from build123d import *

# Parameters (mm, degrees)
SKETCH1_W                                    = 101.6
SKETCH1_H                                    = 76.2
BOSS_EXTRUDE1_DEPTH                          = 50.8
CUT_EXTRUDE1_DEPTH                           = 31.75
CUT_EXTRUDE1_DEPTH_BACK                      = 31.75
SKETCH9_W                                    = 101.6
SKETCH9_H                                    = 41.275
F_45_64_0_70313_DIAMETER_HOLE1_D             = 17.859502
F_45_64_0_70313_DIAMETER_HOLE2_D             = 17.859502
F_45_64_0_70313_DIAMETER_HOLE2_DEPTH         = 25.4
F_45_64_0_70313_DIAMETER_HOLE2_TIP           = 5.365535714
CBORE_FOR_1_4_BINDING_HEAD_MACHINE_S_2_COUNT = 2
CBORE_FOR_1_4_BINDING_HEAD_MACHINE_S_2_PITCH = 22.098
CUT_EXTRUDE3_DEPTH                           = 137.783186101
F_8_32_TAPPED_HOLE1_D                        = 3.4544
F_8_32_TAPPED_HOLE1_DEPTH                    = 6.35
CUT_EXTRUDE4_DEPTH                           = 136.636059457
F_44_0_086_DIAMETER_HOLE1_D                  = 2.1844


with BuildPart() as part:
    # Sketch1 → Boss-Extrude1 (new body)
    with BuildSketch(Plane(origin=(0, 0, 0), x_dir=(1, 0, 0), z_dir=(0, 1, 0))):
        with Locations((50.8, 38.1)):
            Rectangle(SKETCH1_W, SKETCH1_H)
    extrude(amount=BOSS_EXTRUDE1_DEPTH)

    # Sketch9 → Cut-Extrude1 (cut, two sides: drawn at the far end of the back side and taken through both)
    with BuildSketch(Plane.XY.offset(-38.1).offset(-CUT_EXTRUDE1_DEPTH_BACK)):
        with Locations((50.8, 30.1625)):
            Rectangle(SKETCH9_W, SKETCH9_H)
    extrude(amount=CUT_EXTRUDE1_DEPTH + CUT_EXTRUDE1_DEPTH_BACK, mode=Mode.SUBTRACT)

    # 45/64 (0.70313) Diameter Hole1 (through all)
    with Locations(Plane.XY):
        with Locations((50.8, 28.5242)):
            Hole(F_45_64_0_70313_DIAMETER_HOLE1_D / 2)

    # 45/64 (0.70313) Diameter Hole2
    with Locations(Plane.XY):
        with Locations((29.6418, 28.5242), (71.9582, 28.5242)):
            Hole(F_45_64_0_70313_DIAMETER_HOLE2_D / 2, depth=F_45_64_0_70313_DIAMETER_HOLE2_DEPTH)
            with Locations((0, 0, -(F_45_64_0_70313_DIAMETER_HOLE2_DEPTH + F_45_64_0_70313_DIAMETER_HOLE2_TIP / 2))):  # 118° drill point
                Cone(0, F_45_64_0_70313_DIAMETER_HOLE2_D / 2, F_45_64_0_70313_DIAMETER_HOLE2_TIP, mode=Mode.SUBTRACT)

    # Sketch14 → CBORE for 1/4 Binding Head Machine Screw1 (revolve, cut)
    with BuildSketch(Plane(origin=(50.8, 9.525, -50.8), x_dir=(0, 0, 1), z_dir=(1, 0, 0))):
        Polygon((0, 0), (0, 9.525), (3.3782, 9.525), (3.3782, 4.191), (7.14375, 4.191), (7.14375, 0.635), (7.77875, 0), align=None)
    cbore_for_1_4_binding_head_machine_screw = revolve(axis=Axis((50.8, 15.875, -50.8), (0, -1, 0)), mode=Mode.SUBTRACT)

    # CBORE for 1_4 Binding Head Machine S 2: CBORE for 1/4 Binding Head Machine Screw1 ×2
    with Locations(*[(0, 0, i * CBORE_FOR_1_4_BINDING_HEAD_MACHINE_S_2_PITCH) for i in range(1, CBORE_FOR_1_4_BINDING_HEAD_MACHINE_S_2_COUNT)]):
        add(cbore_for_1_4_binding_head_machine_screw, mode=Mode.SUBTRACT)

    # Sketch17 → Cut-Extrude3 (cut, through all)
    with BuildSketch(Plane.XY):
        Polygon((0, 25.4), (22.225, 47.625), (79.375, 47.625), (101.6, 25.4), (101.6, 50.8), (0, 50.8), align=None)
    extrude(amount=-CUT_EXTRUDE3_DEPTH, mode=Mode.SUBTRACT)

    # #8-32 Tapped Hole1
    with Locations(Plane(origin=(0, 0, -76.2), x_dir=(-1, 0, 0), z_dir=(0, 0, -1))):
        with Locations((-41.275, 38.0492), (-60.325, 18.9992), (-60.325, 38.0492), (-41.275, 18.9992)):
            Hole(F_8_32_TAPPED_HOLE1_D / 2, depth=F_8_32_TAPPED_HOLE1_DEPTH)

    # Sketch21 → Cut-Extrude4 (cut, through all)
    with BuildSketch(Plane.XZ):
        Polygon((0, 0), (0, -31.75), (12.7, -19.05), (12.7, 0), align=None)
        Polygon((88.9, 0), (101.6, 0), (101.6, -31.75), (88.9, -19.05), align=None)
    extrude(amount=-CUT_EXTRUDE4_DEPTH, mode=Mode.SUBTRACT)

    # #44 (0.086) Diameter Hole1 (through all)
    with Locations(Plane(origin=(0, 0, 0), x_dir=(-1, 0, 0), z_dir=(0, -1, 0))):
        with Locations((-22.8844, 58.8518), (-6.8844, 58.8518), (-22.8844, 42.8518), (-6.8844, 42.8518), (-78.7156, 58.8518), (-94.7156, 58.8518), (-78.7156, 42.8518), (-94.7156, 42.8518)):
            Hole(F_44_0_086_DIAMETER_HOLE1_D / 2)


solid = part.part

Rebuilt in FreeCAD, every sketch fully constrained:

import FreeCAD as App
import Part
import Sketcher
from FreeCAD import Vector
Q = App.Units.Quantity


def add_polygon(sketch, points):
    """Adds a closed chain of lines whose ends are joined by coincident constraints."""
    first, n = sketch.GeometryCount, len(points)
    for a, b in zip(points, points[1:] + points[:1]):
        sketch.addGeometry(Part.LineSegment(App.Vector(*a, 0), App.Vector(*b, 0)), False)
    for i in range(n):
        sketch.addConstraint(Sketcher.Constraint("Coincident", first + i, 2, first + (i + 1) % n, 1))

doc = App.newDocument("Part")
params = doc.addObject("Spreadsheet::Sheet", "Params")
for row, (alias, value) in enumerate([
    ("sketch1_width", "4 in"),
    ("sketch1_height", "3 in"),
    ("pad1_length", "2 in"),
    ("sketch2_width", "4 in"),
    ("sketch2_height", "1.625 in"),
    ("pocket1_length", "1.25 in"),
    ("pocket1_length2", "1.25 in"),
    ("hole_diameter", "17.859502 mm"),
    ("hole2_diameter", "17.859502 mm"),
    ("hole2_depth", "1 in"),
    ("sketch5_width", "0.14 in"),
    ("sketch5_width2", "0.21 in"),
    ("sketch5_width3", "0.375 in"),
    ("sketch5_height", "0.133 in"),
    ("groove_angle", "360 deg"),
    ("linearpattern_pitch", "0.87 in"),
    ("sketch6_width", "4 in"),
    ("sketch6_height", "1 in"),
    ("sketch6_width2", "2.25 in"),
    ("sketch7_diameter", "0.136 in"),
    ("hole3_diameter", "0.136 in"),
    ("hole3_depth", "0.25 in"),
    ("sketch8_width", "0.5 in"),
    ("sketch8_height", "1.25 in"),
    ("sketch9_diameter", "0.086 in"),
    ("hole4_diameter", "0.086 in"),
], start=1):
    params.set(f"A{row}", alias)
    params.set(f"B{row}", "=" + value)
    params.setAlias(f"B{row}", alias)

body = doc.addObject("PartDesign::Body", "Body")

sketch1 = body.newObject("Sketcher::SketchObject", "Sketch")
sketch1.AttachmentSupport = (doc.getObject("XZ_Plane"), [""])
sketch1.MapMode = "FlatFace"
add_polygon(sketch1, [(0, -76), (0, 0), (102, 0), (102, -76)])
sketch1.addConstraint([
    Sketcher.Constraint("Vertical", 0),
    Sketcher.Constraint("Horizontal", 1),
    Sketcher.Constraint("Vertical", 2),
    Sketcher.Constraint("Horizontal", 3),
    Sketcher.Constraint("Coincident", 0, 2, -1, 1),
    Sketcher.Constraint("DistanceX", 1, 1, 1, 2, Q("4 in")),
    Sketcher.Constraint("DistanceY", 0, 1, 0, 2, Q("3 in")),
])
sketch1.setExpression("Constraints[9]", "Params.sketch1_width")
sketch1.setExpression("Constraints[10]", "Params.sketch1_height")
pad1 = body.newObject("PartDesign::Pad", "Pad")
pad1.Profile = sketch1
pad1.setExpression("Length", "Params.pad1_length")
pad1.Reversed = True

sketch2 = body.newObject("Sketcher::SketchObject", "Sketch001")
sketch2.AttachmentSupport = (doc.getObject("XY_Plane"), [""])
sketch2.MapMode = "FlatFace"
sketch2.AttachmentOffset = App.Placement(Vector(0, 0, -1.5 * 25.4), App.Rotation())
add_polygon(sketch2, [(0, 51), (0, 10), (102, 10), (102, 51)])
sketch2.addConstraint([
    Sketcher.Constraint("Vertical", 0),
    Sketcher.Constraint("Horizontal", 1),
    Sketcher.Constraint("Vertical", 2),
    Sketcher.Constraint("Horizontal", 3),
    Sketcher.Constraint("PointOnObject", 0, 2, -2),
    Sketcher.Constraint("DistanceX", 1, 1, 1, 2, Q("4 in")),
    Sketcher.Constraint("DistanceY", -1, 1, 2, 2, Q("2 in")),
    Sketcher.Constraint("DistanceY", 0, 2, 0, 1, Q("1.625 in")),
])
sketch2.setExpression("Constraints[9]", "Params.sketch2_width")
sketch2.setExpression("Constraints[11]", "Params.sketch2_height")
pocket1 = body.newObject("PartDesign::Pocket", "Pocket")
pocket1.Profile = sketch2
pocket1.Type = "TwoLengths"
pocket1.setExpression("Length", "Params.pocket1_length")
pocket1.setExpression("Length2", "Params.pocket1_length2")
pocket1.Reversed = True

sketch3 = body.newObject("Sketcher::SketchObject", "Sketch002")
sketch3.AttachmentSupport = (doc.getObject("XY_Plane"), [""])
sketch3.MapMode = "FlatFace"
sketch3.addGeometry(Part.Circle(Vector(51, 29, 0), Vector(0, 0, 1), 9), False)
sketch3.addConstraint([
    Sketcher.Constraint("DistanceX", -1, 1, 0, 3, Q("2 in")),
    Sketcher.Constraint("Diameter", 0, 17.859502),
    Sketcher.Constraint("DistanceY", -1, 1, 0, 3, Q("1.123 in")),
])
doc.recompute()
hole = body.newObject("PartDesign::Hole", "Hole")
hole.Profile = sketch3
hole.ThreadType = "None"
hole.setExpression("Diameter", "Params.hole_diameter")
hole.DepthType = "ThroughAll"

sketch4 = body.newObject("Sketcher::SketchObject", "Sketch003")
sketch4.AttachmentSupport = (doc.getObject("XY_Plane"), [""])
sketch4.MapMode = "FlatFace"
sketch4.addGeometry([
    Part.Circle(Vector(30, 29, 0), Vector(0, 0, 1), 9),
    Part.Circle(Vector(72, 29, 0), Vector(0, 0, 1), 9),
], False)
sketch4.addConstraint([
    Sketcher.Constraint("Equal", 0, 1),
    Sketcher.Constraint("Horizontal", 0, 3, 1, 3),
    Sketcher.Constraint("Diameter", 0, 17.859502),
    Sketcher.Constraint("DistanceX", -1, 1, 0, 3, Q("1.167 in")),
    Sketcher.Constraint("DistanceY", -1, 1, 0, 3, Q("1.123 in")),
    Sketcher.Constraint("DistanceX", -1, 1, 1, 3, Q("2.833 in")),
])
doc.recompute()
hole2 = body.newObject("PartDesign::Hole", "Hole001")
hole2.Profile = sketch4
hole2.ThreadType = "None"
hole2.setExpression("Diameter", "Params.hole2_diameter")
hole2.DepthType = "Dimension"
hole2.setExpression("Depth", "Params.hole2_depth")
hole2.DrillPoint = "Angled"
hole2.DrillPointAngle = 118

sketch5 = body.newObject("Sketcher::SketchObject", "Sketch004")
sketch5.AttachmentSupport = (doc.getObject("YZ_Plane"), [""])
sketch5.MapMode = "FlatFace"
sketch5.AttachmentOffset = App.Placement(Vector(0, 0, 2 * 25.4), App.Rotation())
add_polygon(sketch5, [(0, -50.8), (9.5, -50.8), (9.5, -43), (8.9, -43.7), (5.3, -43.7), (5.3, -47.4), (0, -47.4)])
sketch5.addGeometry(Part.LineSegment(Vector(9.5, -50.8, 0), Vector(0, -50.8, 0)), True)
sketch5.addConstraint([
    Sketcher.Constraint("Horizontal", 0),
    Sketcher.Constraint("Vertical", 1),
    Sketcher.Constraint("Horizontal", 3),
    Sketcher.Constraint("Vertical", 4),
    Sketcher.Constraint("Horizontal", 5),
    Sketcher.Constraint("Vertical", 6),
    Sketcher.Constraint("Horizontal", 7),
    Sketcher.Constraint("Coincident", 7, 1, 0, 2),
    Sketcher.Constraint("PointOnObject", 5, 2, -2),
    Sketcher.Constraint("PointOnObject", 7, 2, -2),
    Sketcher.Constraint("DistanceY", 0, 2, -1, 1, Q("2 in")),
    Sketcher.Constraint("Angle", 2, Q("-135 deg")),
    Sketcher.Constraint("DistanceX", 3, 2, 3, 1, Q("0.14 in")),
    Sketcher.Constraint("DistanceX", 5, 2, 5, 1, Q("0.21 in")),
    Sketcher.Constraint("DistanceX", 0, 1, 0, 2, Q("0.375 in")),
    Sketcher.Constraint("DistanceY", 6, 2, 6, 1, Q("0.133 in")),
    Sketcher.Constraint("DistanceY", 2, 2, -1, 1, Q("1.71875 in")),
])
sketch5.setExpression("Constraints[19]", "Params.sketch5_width")
sketch5.setExpression("Constraints[20]", "Params.sketch5_width2")
sketch5.setExpression("Constraints[21]", "Params.sketch5_width3")
sketch5.setExpression("Constraints[22]", "Params.sketch5_height")
groove = body.newObject("PartDesign::Groove", "Groove")
groove.Profile = sketch5
groove.ReferenceAxis = (sketch5, ["Axis0"])
groove.setExpression("Angle", "Params.groove_angle")
doc.recompute()

linearpattern = body.newObject("PartDesign::LinearPattern", "LinearPattern")
linearpattern.Originals = [groove]
linearpattern.Direction = (doc.getObject("Z_Axis"), [""])
linearpattern.Mode = "offset"
linearpattern.setExpression("Offset", "Params.linearpattern_pitch")
linearpattern.Occurrences = 2
body.Tip = linearpattern

sketch6 = body.newObject("Sketcher::SketchObject", "Sketch005")
sketch6.AttachmentSupport = (doc.getObject("XY_Plane"), [""])
sketch6.MapMode = "FlatFace"
add_polygon(sketch6, [(0, 25), (22, 48), (79, 48), (102, 25), (102, 51), (0, 51)])
sketch6.addConstraint([
    Sketcher.Constraint("Horizontal", 1),
    Sketcher.Constraint("Vertical", 3),
    Sketcher.Constraint("Horizontal", 4),
    Sketcher.Constraint("Vertical", 5),
    Sketcher.Constraint("PointOnObject", 4, 2, -2),
    Sketcher.Constraint("Perpendicular", 0, 2),
    Sketcher.Constraint("Horizontal", 2, 2, 5, 2),
    Sketcher.Constraint("Equal", 0, 2),
    Sketcher.Constraint("DistanceX", 4, 2, 4, 1, Q("4 in")),
    Sketcher.Constraint("DistanceY", 3, 1, 3, 2, Q("1 in")),
    Sketcher.Constraint("DistanceY", -1, 1, 2, 2, Q("1 in")),
    Sketcher.Constraint("DistanceX", 1, 1, 1, 2, Q("2.25 in")),
])
sketch6.setExpression("Constraints[14]", "Params.sketch6_width")
sketch6.setExpression("Constraints[15]", "Params.sketch6_height")
sketch6.setExpression("Constraints[17]", "Params.sketch6_width2")
pocket2 = body.newObject("PartDesign::Pocket", "Pocket001")
pocket2.Profile = sketch6
pocket2.Type = "ThroughAll"

sketch7 = body.newObject("Sketcher::SketchObject", "Sketch006")
sketch7.AttachmentSupport = (doc.getObject("XY_Plane"), [""])
sketch7.MapMode = "FlatFace"
sketch7.AttachmentOffset = App.Placement(Vector(0, 0, -3 * 25.4), App.Rotation())
sketch7.addGeometry([
    Part.Circle(Vector(41.3, 38, 0), Vector(0, 0, 1), 1.7),
    Part.Circle(Vector(60.3, 19, 0), Vector(0, 0, 1), 1.7),
    Part.Circle(Vector(60.3, 38, 0), Vector(0, 0, 1), 1.7),
    Part.Circle(Vector(41.3, 19, 0), Vector(0, 0, 1), 1.7),
], False)
sketch7.addConstraint([
    Sketcher.Constraint("Equal", 0, 1),
    Sketcher.Constraint("Equal", 1, 2),
    Sketcher.Constraint("Equal", 2, 3),
    Sketcher.Constraint("Horizontal", 0, 3, 2, 3),
    Sketcher.Constraint("Horizontal", 1, 3, 3, 3),
    Sketcher.Constraint("Vertical", 1, 3, 2, 3),
    Sketcher.Constraint("Vertical", 0, 3, 3, 3),
    Sketcher.Constraint("Diameter", 0, Q("0.136 in")),
    Sketcher.Constraint("DistanceX", 0, 3, 1, 3, Q("0.75 in")),
    Sketcher.Constraint("DistanceY", 1, 3, 0, 3, Q("0.75 in")),
    Sketcher.Constraint("DistanceX", -1, 1, 0, 3, Q("1.625 in")),
    Sketcher.Constraint("DistanceY", -1, 1, 0, 3, Q("1.498 in")),
])
sketch7.setExpression("Constraints[7]", "Params.sketch7_diameter")
doc.recompute()
hole3 = body.newObject("PartDesign::Hole", "Hole002")
hole3.Profile = sketch7
hole3.ThreadType = "None"
hole3.setExpression("Diameter", "Params.hole3_diameter")
hole3.DepthType = "Dimension"
hole3.setExpression("Depth", "Params.hole3_depth")
hole3.DrillPoint = "Flat"
hole3.Reversed = True

sketch8 = body.newObject("Sketcher::SketchObject", "Sketch007")
sketch8.AttachmentSupport = (doc.getObject("XZ_Plane"), [""])
sketch8.MapMode = "FlatFace"
add_polygon(sketch8, [(0, 0), (0, -32), (13, -19), (13, 0)])
add_polygon(sketch8, [(102, 0), (89, 0), (89, -19), (102, -32)])
sketch8.addConstraint([
    Sketcher.Constraint("Vertical", 0),
    Sketcher.Constraint("Vertical", 2),
    Sketcher.Constraint("Horizontal", 3),
    Sketcher.Constraint("Horizontal", 4),
    Sketcher.Constraint("Vertical", 5),
    Sketcher.Constraint("Vertical", 7),
    Sketcher.Constraint("Coincident", 3, 2, -1, 1),
    Sketcher.Constraint("PointOnObject", 4, 2, -1),
    Sketcher.Constraint("Perpendicular", 1, 6),
    Sketcher.Constraint("Horizontal", 1, 2, 5, 2),
    Sketcher.Constraint("Horizontal", 0, 2, 6, 2),
    Sketcher.Constraint("Equal", 3, 4),
    Sketcher.Constraint("DistanceX", 3, 2, 3, 1, Q("0.5 in")),
    Sketcher.Constraint("DistanceX", -1, 1, 6, 2, Q("4 in")),
    Sketcher.Constraint("DistanceY", 0, 2, 0, 1, Q("1.25 in")),
])
sketch8.setExpression("Constraints[20]", "Params.sketch8_width")
sketch8.setExpression("Constraints[22]", "Params.sketch8_height")
pocket3 = body.newObject("PartDesign::Pocket", "Pocket002")
pocket3.Profile = sketch8
pocket3.Type = "ThroughAll"

sketch9 = body.newObject("Sketcher::SketchObject", "Sketch008")
sketch9.AttachmentSupport = (doc.getObject("XZ_Plane"), [""])
sketch9.MapMode = "FlatFace"
sketch9.addGeometry([
    Part.Circle(Vector(22.9, -58.9, 0), Vector(0, 0, 1), 1.1),
    Part.Circle(Vector(6.9, -58.9, 0), Vector(0, 0, 1), 1.1),
    Part.Circle(Vector(22.9, -42.9, 0), Vector(0, 0, 1), 1.1),
    Part.Circle(Vector(6.9, -42.9, 0), Vector(0, 0, 1), 1.1),
    Part.Circle(Vector(78.7, -58.9, 0), Vector(0, 0, 1), 1.1),
    Part.Circle(Vector(94.7, -58.9, 0), Vector(0, 0, 1), 1.1),
    Part.Circle(Vector(78.7, -42.9, 0), Vector(0, 0, 1), 1.1),
    Part.Circle(Vector(94.7, -42.9, 0), Vector(0, 0, 1), 1.1),
], False)
sketch9.addConstraint([
    Sketcher.Constraint("Equal", 0, 1),
    Sketcher.Constraint("Equal", 1, 2),
    Sketcher.Constraint("Equal", 2, 3),
    Sketcher.Constraint("Equal", 3, 4),
    Sketcher.Constraint("Equal", 4, 5),
    Sketcher.Constraint("Equal", 5, 6),
    Sketcher.Constraint("Equal", 6, 7),
    Sketcher.Constraint("Horizontal", 0, 3, 1, 3),
    Sketcher.Constraint("Horizontal", 2, 3, 3, 3),
    Sketcher.Constraint("Horizontal", 1, 3, 4, 3),
    Sketcher.Constraint("Horizontal", 4, 3, 5, 3),
    Sketcher.Constraint("Horizontal", 3, 3, 6, 3),
    Sketcher.Constraint("Horizontal", 6, 3, 7, 3),
    Sketcher.Constraint("Vertical", 0, 3, 2, 3),
    Sketcher.Constraint("Vertical", 1, 3, 3, 3),
    Sketcher.Constraint("Vertical", 4, 3, 6, 3),
    Sketcher.Constraint("Vertical", 5, 3, 7, 3),
    Sketcher.Constraint("Diameter", 0, Q("0.086 in")),
    Sketcher.Constraint("DistanceY", 0, 3, -1, 1, Q("2.317 in")),
    Sketcher.Constraint("DistanceX", 1, 3, 4, 3, Q("2.828 in")),
    Sketcher.Constraint("DistanceX", 0, 3, 5, 3, Q("2.828 in")),
    Sketcher.Constraint("DistanceX", -1, 1, 0, 3, 22.8844),
    Sketcher.Constraint("DistanceX", -1, 1, 1, 3, 6.8844),
    Sketcher.Constraint("DistanceY", 2, 3, -1, 1, 42.8518),
])
sketch9.setExpression("Constraints[17]", "Params.sketch9_diameter")
doc.recompute()
hole4 = body.newObject("PartDesign::Hole", "Hole003")
hole4.Profile = sketch9
hole4.ThreadType = "None"
hole4.setExpression("Diameter", "Params.hole4_diameter")
hole4.DepthType = "ThroughAll"

doc.recompute()
